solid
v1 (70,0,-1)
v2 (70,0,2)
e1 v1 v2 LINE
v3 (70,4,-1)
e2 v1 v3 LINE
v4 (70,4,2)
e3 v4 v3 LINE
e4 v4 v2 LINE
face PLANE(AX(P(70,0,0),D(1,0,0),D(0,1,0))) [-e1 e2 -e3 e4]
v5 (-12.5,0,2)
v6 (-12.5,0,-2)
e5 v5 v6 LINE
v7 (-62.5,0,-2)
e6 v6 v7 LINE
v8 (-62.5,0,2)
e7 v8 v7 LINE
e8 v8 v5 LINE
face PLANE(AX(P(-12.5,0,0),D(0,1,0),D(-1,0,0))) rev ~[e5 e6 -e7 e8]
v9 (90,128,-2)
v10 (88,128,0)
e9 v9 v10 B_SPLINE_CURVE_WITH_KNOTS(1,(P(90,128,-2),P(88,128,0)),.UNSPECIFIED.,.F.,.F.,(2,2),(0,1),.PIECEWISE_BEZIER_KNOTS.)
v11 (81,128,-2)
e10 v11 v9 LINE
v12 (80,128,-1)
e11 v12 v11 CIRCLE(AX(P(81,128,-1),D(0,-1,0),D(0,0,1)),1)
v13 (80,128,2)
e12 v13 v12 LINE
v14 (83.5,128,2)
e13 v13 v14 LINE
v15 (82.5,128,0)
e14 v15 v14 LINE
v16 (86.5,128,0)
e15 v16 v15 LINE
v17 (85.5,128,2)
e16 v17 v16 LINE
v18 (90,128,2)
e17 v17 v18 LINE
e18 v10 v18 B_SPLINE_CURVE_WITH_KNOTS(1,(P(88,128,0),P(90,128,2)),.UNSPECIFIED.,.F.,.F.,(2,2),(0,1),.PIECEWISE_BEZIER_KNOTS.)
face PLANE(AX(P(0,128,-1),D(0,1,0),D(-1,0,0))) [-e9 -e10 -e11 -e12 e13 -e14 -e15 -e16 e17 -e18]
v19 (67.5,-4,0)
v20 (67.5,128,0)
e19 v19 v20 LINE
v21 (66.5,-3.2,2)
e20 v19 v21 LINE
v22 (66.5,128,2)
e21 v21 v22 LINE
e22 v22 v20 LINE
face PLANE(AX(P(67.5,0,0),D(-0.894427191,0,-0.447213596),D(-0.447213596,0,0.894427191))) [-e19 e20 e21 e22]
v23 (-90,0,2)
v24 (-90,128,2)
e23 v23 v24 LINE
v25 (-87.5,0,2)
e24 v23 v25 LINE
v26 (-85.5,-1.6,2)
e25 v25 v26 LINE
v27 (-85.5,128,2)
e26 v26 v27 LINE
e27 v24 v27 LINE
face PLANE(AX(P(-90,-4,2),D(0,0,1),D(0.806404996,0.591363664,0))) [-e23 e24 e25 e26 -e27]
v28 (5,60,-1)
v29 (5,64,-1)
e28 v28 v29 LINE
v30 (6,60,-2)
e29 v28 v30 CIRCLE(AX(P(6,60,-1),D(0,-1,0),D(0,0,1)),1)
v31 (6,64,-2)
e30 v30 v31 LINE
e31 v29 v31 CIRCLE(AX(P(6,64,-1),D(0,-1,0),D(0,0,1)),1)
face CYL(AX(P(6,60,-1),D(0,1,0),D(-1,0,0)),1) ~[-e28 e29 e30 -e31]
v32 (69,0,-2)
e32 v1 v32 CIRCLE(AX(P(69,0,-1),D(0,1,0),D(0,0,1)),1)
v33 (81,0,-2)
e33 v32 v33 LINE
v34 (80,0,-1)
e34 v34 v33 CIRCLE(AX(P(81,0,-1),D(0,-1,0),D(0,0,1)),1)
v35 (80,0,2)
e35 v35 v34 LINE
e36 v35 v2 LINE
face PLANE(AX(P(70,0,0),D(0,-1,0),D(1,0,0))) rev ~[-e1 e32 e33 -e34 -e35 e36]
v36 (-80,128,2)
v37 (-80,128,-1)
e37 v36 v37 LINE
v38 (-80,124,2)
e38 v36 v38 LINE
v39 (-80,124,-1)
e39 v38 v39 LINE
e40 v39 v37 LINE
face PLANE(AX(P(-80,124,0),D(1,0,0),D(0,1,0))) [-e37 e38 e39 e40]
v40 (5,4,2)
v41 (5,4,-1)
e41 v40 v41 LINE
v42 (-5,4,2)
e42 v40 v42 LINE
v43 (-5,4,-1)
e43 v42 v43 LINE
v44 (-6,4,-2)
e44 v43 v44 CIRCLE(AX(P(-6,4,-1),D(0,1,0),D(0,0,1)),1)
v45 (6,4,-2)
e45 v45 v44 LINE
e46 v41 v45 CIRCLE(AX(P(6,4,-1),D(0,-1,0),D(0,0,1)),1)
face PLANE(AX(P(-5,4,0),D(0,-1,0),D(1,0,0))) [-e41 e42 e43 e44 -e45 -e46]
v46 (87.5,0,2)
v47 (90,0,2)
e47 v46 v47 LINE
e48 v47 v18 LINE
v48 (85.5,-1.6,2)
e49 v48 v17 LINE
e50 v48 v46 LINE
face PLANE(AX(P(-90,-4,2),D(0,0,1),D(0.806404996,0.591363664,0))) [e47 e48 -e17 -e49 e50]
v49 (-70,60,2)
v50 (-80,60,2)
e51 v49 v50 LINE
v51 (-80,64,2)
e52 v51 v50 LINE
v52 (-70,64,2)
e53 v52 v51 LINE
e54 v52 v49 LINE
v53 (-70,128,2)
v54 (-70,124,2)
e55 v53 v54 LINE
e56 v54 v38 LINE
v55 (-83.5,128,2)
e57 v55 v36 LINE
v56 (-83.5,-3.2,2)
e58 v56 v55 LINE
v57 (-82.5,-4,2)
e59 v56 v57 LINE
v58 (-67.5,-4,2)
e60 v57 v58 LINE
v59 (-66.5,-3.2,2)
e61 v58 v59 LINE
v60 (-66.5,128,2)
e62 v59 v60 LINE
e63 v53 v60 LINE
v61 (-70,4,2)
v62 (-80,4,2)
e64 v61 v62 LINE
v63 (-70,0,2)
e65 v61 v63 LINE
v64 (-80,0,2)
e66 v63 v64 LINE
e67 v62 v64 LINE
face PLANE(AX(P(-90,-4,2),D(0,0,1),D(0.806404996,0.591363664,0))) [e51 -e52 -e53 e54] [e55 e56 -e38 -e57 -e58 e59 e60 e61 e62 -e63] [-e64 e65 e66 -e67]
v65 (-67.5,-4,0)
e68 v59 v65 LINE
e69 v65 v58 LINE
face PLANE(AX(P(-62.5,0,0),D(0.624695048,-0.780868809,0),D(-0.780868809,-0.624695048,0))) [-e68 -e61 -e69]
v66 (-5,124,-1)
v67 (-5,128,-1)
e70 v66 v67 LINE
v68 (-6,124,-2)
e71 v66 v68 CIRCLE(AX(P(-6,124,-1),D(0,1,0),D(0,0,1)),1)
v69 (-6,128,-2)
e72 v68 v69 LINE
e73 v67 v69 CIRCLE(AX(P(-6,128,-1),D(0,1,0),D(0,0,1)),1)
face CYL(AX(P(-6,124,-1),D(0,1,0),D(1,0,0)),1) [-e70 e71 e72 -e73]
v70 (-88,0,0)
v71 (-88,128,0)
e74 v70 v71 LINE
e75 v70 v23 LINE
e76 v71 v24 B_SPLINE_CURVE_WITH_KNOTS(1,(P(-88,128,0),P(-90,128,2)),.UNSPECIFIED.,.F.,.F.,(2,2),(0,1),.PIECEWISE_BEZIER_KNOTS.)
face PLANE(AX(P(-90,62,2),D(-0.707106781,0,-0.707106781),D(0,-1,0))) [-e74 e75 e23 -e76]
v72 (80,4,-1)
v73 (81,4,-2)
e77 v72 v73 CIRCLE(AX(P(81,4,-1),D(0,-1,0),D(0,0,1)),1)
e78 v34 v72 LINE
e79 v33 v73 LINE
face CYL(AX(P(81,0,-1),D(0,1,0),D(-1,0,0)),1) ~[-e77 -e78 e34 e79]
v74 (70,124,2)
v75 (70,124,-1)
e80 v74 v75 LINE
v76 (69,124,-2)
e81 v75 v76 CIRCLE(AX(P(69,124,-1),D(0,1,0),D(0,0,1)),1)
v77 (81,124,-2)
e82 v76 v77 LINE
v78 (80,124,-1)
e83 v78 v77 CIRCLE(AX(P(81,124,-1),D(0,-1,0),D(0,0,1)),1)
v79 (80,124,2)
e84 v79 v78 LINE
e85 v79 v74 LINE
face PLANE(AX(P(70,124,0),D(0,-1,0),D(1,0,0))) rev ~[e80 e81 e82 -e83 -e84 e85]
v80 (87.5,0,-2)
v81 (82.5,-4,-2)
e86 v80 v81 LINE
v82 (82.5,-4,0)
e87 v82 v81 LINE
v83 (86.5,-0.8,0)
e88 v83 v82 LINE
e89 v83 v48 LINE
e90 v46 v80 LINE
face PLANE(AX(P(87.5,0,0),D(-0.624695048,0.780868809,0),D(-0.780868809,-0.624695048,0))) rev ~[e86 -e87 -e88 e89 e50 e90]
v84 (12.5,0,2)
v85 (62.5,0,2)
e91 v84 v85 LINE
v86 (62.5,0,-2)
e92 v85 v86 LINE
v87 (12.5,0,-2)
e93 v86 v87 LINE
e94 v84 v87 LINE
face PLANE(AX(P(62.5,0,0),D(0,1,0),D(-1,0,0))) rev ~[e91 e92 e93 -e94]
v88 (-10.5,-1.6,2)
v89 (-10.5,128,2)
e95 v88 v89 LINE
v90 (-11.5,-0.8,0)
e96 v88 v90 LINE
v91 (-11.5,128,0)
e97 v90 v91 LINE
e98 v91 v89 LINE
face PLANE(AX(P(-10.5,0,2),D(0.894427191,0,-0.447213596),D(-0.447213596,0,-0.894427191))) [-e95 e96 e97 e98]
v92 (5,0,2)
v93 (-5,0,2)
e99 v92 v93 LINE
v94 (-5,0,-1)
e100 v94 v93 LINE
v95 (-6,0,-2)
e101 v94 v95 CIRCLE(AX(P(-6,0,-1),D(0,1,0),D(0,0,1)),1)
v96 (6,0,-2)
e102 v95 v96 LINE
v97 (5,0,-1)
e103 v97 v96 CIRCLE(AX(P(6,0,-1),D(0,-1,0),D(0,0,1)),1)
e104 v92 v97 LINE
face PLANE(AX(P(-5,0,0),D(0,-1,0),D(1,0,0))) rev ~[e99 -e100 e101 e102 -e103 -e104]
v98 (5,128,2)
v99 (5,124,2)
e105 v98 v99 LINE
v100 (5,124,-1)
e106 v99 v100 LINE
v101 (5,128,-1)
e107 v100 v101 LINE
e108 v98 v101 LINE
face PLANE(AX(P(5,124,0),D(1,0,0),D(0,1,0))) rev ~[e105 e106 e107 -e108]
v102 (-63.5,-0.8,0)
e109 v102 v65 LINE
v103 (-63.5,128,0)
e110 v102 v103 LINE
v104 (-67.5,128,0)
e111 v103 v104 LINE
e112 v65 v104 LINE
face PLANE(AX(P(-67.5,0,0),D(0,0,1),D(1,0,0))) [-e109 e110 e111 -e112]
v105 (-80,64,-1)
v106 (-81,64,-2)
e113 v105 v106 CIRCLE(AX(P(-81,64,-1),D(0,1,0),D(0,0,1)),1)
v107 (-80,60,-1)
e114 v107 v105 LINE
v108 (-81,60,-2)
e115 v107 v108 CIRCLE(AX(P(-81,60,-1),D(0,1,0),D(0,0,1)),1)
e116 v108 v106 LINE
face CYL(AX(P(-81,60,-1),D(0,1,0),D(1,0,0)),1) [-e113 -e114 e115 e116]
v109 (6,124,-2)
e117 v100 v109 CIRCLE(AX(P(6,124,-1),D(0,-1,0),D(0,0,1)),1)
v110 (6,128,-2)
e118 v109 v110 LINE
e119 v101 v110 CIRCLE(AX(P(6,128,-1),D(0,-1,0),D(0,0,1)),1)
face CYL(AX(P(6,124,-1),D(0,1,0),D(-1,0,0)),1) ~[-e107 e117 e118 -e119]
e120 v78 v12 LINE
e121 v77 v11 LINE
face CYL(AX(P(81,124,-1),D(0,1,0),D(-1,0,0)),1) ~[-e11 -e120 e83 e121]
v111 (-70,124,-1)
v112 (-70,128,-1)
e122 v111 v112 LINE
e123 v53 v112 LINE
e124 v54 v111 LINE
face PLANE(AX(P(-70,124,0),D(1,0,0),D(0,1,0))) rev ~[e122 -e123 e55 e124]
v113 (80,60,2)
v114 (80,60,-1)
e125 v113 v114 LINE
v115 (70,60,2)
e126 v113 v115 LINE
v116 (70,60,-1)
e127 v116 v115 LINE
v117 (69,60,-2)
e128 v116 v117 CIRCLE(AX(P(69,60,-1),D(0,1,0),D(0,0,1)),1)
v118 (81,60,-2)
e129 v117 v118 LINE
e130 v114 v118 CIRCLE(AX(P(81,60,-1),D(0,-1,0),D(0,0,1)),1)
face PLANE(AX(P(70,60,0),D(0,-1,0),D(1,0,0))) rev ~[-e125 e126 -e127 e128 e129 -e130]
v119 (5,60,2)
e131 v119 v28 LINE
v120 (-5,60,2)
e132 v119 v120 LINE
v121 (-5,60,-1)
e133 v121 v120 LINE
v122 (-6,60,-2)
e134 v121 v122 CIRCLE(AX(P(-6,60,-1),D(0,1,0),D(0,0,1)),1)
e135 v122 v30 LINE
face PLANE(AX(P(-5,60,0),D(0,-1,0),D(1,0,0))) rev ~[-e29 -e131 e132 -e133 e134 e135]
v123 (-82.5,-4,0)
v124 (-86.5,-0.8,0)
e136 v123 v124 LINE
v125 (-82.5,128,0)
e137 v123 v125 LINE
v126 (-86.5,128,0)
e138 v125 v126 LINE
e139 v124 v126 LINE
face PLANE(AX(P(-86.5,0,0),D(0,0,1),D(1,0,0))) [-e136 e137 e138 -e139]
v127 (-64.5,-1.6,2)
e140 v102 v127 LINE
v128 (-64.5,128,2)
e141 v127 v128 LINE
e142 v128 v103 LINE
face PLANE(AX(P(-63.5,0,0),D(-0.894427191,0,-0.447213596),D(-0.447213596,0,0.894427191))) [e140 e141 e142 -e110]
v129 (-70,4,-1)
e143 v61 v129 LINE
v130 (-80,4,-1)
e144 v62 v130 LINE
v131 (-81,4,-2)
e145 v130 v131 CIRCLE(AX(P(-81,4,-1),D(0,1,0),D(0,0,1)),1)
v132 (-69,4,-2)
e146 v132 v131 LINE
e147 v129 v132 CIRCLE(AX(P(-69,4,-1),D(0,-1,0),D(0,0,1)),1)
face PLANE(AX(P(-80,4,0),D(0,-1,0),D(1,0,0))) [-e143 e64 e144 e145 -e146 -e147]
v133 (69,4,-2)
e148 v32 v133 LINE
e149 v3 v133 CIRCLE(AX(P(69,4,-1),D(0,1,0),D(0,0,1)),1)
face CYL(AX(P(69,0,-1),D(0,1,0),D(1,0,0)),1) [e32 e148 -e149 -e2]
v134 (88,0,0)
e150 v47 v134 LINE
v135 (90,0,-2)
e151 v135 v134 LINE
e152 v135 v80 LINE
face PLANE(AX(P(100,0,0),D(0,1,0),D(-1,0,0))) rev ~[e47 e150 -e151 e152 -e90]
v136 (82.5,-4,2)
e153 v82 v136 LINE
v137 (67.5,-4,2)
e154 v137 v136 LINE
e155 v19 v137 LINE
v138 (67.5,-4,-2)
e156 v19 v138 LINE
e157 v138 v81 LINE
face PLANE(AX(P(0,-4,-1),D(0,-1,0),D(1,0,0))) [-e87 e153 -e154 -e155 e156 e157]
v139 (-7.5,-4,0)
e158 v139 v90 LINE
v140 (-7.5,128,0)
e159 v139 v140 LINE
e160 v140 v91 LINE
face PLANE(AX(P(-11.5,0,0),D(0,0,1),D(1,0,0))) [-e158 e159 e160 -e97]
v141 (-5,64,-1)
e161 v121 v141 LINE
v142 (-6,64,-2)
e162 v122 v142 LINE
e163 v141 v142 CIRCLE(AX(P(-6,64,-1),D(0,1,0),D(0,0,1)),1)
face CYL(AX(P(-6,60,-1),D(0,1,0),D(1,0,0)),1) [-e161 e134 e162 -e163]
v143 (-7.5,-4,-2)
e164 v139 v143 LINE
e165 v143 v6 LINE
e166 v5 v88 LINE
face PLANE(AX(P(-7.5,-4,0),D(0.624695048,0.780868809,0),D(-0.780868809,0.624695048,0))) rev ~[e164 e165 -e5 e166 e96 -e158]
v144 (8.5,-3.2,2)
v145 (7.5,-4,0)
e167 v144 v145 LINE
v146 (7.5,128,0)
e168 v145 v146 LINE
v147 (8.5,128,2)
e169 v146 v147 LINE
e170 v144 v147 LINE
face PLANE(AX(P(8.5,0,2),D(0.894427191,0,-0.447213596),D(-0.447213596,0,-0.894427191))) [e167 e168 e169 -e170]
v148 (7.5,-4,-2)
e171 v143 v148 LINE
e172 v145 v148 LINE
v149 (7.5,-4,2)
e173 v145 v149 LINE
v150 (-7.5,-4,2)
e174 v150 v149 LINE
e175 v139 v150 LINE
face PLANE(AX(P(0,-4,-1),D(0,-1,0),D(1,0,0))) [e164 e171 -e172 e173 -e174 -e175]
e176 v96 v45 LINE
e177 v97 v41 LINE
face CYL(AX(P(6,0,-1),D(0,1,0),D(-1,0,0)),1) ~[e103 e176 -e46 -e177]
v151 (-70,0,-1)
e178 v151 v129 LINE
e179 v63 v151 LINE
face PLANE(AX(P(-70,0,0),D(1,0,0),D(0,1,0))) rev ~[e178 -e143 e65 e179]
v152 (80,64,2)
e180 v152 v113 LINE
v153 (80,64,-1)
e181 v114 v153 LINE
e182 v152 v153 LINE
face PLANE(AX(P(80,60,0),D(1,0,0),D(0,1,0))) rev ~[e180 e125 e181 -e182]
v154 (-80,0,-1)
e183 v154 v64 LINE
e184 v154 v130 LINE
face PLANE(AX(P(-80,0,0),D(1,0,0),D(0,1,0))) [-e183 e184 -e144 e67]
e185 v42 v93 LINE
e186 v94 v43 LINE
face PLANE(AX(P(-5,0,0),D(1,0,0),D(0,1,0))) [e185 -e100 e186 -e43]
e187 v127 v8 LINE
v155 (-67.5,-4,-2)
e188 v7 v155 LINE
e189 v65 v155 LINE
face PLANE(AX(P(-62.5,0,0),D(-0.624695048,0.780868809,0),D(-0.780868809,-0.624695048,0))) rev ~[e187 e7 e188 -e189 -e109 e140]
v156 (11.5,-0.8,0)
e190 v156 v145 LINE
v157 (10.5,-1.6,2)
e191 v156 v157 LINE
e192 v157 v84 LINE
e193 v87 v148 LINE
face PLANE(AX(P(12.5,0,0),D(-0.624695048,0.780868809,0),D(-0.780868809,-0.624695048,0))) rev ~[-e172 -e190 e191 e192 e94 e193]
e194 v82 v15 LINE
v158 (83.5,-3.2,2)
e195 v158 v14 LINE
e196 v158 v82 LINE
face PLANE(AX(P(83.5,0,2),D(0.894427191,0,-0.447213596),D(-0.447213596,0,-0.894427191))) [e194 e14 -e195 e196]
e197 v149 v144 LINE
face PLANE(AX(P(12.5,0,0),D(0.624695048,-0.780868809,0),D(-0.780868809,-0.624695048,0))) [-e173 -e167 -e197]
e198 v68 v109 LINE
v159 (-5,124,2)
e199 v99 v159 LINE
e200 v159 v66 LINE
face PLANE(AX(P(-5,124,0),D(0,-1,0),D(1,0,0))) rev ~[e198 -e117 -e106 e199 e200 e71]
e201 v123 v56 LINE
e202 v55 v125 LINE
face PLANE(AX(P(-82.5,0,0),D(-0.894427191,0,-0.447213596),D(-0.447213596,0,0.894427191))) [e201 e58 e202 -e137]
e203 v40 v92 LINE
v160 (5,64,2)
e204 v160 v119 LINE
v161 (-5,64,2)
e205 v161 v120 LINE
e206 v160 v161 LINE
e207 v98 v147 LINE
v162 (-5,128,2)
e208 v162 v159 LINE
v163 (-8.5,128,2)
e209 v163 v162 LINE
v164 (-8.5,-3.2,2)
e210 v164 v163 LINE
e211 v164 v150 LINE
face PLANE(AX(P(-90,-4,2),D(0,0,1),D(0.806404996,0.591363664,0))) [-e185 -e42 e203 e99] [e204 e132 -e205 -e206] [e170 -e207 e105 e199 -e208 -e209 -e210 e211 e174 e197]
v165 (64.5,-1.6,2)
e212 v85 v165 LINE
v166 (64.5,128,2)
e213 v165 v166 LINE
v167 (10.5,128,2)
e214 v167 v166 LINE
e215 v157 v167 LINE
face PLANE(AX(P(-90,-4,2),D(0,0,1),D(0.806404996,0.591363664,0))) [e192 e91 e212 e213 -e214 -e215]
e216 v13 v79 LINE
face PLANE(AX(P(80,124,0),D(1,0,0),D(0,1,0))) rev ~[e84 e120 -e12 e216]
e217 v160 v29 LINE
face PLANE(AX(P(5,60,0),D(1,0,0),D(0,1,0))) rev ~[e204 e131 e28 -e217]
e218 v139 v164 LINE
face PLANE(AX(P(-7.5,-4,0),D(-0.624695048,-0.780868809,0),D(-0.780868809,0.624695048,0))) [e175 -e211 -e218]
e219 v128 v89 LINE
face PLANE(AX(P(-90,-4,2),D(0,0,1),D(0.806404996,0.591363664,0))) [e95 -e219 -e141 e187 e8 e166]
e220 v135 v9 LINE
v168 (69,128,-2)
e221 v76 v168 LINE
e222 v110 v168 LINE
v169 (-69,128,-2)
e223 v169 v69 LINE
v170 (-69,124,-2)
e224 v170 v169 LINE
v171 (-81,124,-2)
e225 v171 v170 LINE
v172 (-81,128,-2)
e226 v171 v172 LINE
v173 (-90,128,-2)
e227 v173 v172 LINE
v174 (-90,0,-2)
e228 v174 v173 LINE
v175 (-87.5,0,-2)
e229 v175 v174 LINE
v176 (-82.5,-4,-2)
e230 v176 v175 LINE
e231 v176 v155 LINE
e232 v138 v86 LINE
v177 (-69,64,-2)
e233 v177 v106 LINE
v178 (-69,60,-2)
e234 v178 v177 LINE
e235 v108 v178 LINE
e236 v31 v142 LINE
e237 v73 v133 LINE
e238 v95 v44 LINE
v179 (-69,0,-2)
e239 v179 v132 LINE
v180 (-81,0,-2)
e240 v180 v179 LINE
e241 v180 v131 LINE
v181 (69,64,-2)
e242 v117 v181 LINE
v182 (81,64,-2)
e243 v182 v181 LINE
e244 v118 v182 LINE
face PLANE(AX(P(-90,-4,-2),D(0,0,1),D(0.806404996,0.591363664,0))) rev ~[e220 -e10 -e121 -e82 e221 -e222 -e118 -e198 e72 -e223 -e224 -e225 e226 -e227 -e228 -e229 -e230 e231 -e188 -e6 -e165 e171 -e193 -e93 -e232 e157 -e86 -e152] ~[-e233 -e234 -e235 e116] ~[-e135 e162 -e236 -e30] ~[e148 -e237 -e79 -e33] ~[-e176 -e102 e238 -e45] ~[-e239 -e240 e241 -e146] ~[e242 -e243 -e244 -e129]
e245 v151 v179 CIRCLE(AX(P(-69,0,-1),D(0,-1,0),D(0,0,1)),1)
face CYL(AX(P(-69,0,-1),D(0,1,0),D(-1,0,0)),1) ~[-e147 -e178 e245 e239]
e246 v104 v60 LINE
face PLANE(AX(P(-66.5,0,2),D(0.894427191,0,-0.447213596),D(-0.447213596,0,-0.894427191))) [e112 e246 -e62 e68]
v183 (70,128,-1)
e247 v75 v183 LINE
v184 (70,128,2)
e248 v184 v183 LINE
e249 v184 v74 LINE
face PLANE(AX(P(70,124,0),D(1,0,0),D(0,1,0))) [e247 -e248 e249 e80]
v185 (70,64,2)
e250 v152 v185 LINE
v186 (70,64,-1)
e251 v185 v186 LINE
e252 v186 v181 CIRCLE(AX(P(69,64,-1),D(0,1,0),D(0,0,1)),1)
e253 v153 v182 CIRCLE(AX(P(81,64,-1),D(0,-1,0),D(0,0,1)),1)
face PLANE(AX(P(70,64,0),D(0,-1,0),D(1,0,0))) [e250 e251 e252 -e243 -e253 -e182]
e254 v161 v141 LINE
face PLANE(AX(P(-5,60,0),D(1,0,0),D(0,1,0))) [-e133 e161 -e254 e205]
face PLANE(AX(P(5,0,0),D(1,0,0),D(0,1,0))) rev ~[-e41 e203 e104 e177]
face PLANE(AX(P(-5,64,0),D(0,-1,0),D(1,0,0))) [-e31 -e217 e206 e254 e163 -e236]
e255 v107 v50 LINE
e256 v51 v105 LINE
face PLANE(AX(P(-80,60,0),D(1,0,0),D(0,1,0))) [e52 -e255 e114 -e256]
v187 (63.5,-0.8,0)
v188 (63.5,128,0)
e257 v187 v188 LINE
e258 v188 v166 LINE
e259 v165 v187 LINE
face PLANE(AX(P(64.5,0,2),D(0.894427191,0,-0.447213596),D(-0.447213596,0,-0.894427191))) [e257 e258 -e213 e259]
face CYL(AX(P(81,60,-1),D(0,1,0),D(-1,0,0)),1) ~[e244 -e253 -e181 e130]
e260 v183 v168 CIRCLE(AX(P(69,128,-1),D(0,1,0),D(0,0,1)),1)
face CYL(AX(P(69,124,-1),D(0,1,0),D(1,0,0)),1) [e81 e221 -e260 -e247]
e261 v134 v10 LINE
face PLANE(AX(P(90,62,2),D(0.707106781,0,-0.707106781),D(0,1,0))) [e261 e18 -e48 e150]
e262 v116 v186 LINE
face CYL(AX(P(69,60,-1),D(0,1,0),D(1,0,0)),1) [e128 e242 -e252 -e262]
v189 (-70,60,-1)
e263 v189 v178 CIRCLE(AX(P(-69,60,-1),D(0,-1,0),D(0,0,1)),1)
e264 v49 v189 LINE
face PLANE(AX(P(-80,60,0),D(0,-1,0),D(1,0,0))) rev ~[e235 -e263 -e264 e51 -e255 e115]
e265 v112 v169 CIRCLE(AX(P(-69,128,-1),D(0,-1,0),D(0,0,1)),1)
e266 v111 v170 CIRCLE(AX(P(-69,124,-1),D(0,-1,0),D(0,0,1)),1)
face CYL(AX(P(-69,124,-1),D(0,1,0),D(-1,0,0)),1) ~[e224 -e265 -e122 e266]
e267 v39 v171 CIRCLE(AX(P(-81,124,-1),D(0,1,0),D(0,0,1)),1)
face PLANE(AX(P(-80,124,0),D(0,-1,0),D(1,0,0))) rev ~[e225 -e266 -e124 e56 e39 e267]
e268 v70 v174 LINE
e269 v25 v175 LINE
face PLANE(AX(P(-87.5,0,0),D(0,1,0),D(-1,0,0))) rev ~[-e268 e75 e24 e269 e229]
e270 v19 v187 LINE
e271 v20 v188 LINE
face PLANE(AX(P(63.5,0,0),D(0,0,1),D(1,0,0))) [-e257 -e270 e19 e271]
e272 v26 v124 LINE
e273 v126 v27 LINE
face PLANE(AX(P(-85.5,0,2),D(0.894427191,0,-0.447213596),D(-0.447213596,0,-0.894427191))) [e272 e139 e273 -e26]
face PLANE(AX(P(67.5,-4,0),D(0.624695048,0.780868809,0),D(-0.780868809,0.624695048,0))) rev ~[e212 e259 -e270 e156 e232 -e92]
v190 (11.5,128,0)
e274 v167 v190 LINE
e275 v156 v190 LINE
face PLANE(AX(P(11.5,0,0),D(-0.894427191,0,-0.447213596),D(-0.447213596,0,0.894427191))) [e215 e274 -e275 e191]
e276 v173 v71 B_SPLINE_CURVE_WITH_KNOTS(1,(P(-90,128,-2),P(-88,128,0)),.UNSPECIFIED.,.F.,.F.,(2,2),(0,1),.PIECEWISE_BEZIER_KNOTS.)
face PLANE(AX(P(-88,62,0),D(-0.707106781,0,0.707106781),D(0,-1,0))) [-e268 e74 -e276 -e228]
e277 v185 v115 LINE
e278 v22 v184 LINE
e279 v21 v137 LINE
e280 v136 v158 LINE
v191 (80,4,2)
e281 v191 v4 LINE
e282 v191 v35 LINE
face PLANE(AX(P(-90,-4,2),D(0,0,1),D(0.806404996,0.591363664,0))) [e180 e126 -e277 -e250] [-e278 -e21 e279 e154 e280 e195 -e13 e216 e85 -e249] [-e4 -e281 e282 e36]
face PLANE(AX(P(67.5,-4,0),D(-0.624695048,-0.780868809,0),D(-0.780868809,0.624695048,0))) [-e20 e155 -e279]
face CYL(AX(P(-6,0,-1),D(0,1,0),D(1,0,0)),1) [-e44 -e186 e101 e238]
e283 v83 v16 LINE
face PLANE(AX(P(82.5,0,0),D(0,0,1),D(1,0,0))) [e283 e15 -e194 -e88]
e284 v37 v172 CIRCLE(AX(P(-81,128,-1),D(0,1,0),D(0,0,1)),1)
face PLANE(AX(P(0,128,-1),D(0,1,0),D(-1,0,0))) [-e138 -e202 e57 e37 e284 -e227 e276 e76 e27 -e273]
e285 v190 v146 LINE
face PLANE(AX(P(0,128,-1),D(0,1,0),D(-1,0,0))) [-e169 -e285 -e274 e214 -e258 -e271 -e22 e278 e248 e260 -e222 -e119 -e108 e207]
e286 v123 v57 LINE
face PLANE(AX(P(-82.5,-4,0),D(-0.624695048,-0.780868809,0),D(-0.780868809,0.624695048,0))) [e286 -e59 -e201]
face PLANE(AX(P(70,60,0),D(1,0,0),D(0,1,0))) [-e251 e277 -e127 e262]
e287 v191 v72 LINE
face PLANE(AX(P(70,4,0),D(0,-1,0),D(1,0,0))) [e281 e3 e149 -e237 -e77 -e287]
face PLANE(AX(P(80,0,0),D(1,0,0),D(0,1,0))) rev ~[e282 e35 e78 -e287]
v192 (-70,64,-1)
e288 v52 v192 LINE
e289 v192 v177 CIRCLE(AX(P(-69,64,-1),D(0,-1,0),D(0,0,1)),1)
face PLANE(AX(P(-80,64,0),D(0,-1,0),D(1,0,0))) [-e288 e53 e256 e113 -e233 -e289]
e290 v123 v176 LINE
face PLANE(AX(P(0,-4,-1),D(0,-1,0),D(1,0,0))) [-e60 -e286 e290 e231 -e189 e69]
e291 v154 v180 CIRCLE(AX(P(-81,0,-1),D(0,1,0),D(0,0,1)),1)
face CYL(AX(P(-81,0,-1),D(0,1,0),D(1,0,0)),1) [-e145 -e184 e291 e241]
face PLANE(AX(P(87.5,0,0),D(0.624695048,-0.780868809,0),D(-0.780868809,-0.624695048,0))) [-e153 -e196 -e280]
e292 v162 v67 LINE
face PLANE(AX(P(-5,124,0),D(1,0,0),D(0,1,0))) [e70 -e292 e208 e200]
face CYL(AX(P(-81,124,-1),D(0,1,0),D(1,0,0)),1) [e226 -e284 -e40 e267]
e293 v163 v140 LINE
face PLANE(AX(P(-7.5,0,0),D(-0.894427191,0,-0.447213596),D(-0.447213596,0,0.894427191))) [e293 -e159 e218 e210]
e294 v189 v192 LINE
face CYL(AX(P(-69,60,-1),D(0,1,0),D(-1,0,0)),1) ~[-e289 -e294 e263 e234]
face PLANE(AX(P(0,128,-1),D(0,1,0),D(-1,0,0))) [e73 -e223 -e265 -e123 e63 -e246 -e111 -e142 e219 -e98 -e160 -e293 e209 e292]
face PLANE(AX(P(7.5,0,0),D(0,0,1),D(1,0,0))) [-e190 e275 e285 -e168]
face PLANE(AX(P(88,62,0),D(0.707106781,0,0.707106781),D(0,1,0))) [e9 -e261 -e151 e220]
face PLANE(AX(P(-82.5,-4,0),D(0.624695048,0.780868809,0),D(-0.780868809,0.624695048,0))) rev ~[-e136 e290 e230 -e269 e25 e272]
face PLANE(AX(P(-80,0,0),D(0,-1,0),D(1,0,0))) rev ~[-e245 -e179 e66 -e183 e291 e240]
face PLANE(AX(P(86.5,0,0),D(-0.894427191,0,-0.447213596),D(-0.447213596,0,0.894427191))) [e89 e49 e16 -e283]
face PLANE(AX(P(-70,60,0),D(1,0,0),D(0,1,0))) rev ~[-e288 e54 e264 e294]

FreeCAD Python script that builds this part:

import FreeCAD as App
import Part
import Sketcher

V = App.Vector


def edges_at(feature, points):
    """Names of the edges that pass closest to the given points."""
    edges = feature.Shape.Edges
    near = lambda p: min(range(len(edges)), key=lambda i: edges[i].distToShape(Part.Vertex(*p))[0])
    return sorted({f"Edge{near(p) + 1}" for p in points})

doc = App.newDocument("Part")
body = doc.addObject("PartDesign::Body", "Body")

# Sketch on XY plane
sketch1 = body.newObject("Sketcher::SketchObject", "Sketch")
sketch1.AttachmentSupport = (doc.getObject("XY_Plane"), [""])
sketch1.MapMode = "FlatFace"
sketch1.AttachmentOffset = App.Placement(V(0, 0, -2), App.Rotation())
sketch1.addGeometry(Part.LineSegment(V(-90, 128, 0), V(-90, -4, 0)), False)
sketch1.addGeometry(Part.LineSegment(V(-90, -4, 0), V(90, -4, 0)), False)
sketch1.addGeometry(Part.LineSegment(V(90, -4, 0), V(90, 128, 0)), False)
sketch1.addGeometry(Part.LineSegment(V(90, 128, 0), V(-90, 128, 0)), False)
sketch1.addConstraint(Sketcher.Constraint("Coincident", 0, 2, 1, 1))
sketch1.addConstraint(Sketcher.Constraint("Coincident", 1, 2, 2, 1))
sketch1.addConstraint(Sketcher.Constraint("Coincident", 2, 2, 3, 1))
sketch1.addConstraint(Sketcher.Constraint("Coincident", 3, 2, 0, 1))
sketch1.addConstraint(Sketcher.Constraint("Vertical", 0))
sketch1.addConstraint(Sketcher.Constraint("Horizontal", 1))
sketch1.addConstraint(Sketcher.Constraint("Vertical", 2))
sketch1.addConstraint(Sketcher.Constraint("Horizontal", 3))
sketch1.addConstraint(Sketcher.Constraint("DistanceX", 1, 1, 1, 2, 180.0))
sketch1.addConstraint(Sketcher.Constraint("DistanceY", 0, 2, 0, 1, 132.0))
sketch1.addConstraint(Sketcher.Constraint("DistanceX", 0, 2, -1, 1, 90.0))
sketch1.addConstraint(Sketcher.Constraint("DistanceY", 0, 2, -1, 1, 4.0))

# Sketch on XY plane
sketch2 = body.newObject("Sketcher::SketchObject", "Sketch001")
sketch2.AttachmentSupport = (doc.getObject("XY_Plane"), [""])
sketch2.MapMode = "FlatFace"
sketch2.addGeometry(Part.LineSegment(V(-88, 128, 0), V(-88, -4, 0)), False)
sketch2.addGeometry(Part.LineSegment(V(-88, -4, 0), V(88, -4, 0)), False)
sketch2.addGeometry(Part.LineSegment(V(88, -4, 0), V(88, 128, 0)), False)
sketch2.addGeometry(Part.LineSegment(V(88, 128, 0), V(-88, 128, 0)), False)
sketch2.addConstraint(Sketcher.Constraint("Coincident", 0, 2, 1, 1))
sketch2.addConstraint(Sketcher.Constraint("Coincident", 1, 2, 2, 1))
sketch2.addConstraint(Sketcher.Constraint("Coincident", 2, 2, 3, 1))
sketch2.addConstraint(Sketcher.Constraint("Coincident", 3, 2, 0, 1))
sketch2.addConstraint(Sketcher.Constraint("Vertical", 0))
sketch2.addConstraint(Sketcher.Constraint("Horizontal", 1))
sketch2.addConstraint(Sketcher.Constraint("Vertical", 2))
sketch2.addConstraint(Sketcher.Constraint("Horizontal", 3))
sketch2.addConstraint(Sketcher.Constraint("DistanceX", 1, 1, 1, 2, 176.0))
sketch2.addConstraint(Sketcher.Constraint("DistanceY", 0, 2, 0, 1, 132.0))
sketch2.addConstraint(Sketcher.Constraint("DistanceX", 0, 2, -1, 1, 88.0))
sketch2.addConstraint(Sketcher.Constraint("DistanceY", 0, 2, -1, 1, 4.0))

# Sketch on XY plane
sketch3 = body.newObject("Sketcher::SketchObject", "Sketch002")
sketch3.AttachmentSupport = (doc.getObject("XY_Plane"), [""])
sketch3.MapMode = "FlatFace"
sketch3.AttachmentOffset = App.Placement(V(0, 0, 2), App.Rotation())
sketch3.addGeometry(Part.LineSegment(V(-90, 128, 0), V(-90, -4, 0)), False)
sketch3.addGeometry(Part.LineSegment(V(-90, -4, 0), V(90, -4, 0)), False)
sketch3.addGeometry(Part.LineSegment(V(90, -4, 0), V(90, 128, 0)), False)
sketch3.addGeometry(Part.LineSegment(V(90, 128, 0), V(-90, 128, 0)), False)
sketch3.addConstraint(Sketcher.Constraint("Coincident", 0, 2, 1, 1))
sketch3.addConstraint(Sketcher.Constraint("Coincident", 1, 2, 2, 1))
sketch3.addConstraint(Sketcher.Constraint("Coincident", 2, 2, 3, 1))
sketch3.addConstraint(Sketcher.Constraint("Coincident", 3, 2, 0, 1))
sketch3.addConstraint(Sketcher.Constraint("Vertical", 0))
sketch3.addConstraint(Sketcher.Constraint("Horizontal", 1))
sketch3.addConstraint(Sketcher.Constraint("Vertical", 2))
sketch3.addConstraint(Sketcher.Constraint("Horizontal", 3))
sketch3.addConstraint(Sketcher.Constraint("DistanceX", 1, 1, 1, 2, 180.0))
sketch3.addConstraint(Sketcher.Constraint("DistanceY", 0, 2, 0, 1, 132.0))
sketch3.addConstraint(Sketcher.Constraint("DistanceX", 0, 2, -1, 1, 90.0))
sketch3.addConstraint(Sketcher.Constraint("DistanceY", 0, 2, -1, 1, 4.0))

additiveloft = body.newObject("PartDesign::AdditiveLoft", "AdditiveLoft")
additiveloft.Profile = sketch1
additiveloft.Sections = [sketch2, sketch3]
additiveloft.Ruled = True

# Sketch on XY plane
sketch4 = body.newObject("Sketcher::SketchObject", "Sketch003")
sketch4.AttachmentSupport = (doc.getObject("XY_Plane"), [""])
sketch4.MapMode = "FlatFace"
sketch4.addGeometry(Part.LineSegment(V(-80, 4, 0), V(-80, 0, 0)), False)
sketch4.addGeometry(Part.LineSegment(V(-80, 0, 0), V(-70, 0, 0)), False)
sketch4.addGeometry(Part.LineSegment(V(-70, 0, 0), V(-70, 4, 0)), False)
sketch4.addGeometry(Part.LineSegment(V(-70, 4, 0), V(-80, 4, 0)), False)
sketch4.addGeometry(Part.LineSegment(V(-5, 4, 0), V(-5, 0, 0)), False)
sketch4.addGeometry(Part.LineSegment(V(-5, 0, 0), V(5, 0, 0)), False)
sketch4.addGeometry(Part.LineSegment(V(5, 0, 0), V(5, 4, 0)), False)
sketch4.addGeometry(Part.LineSegment(V(5, 4, 0), V(-5, 4, 0)), False)
sketch4.addGeometry(Part.LineSegment(V(70, 4, 0), V(70, 0, 0)), False)
sketch4.addGeometry(Part.LineSegment(V(70, 0, 0), V(80, 0, 0)), False)
sketch4.addGeometry(Part.LineSegment(V(80, 0, 0), V(80, 4, 0)), False)
sketch4.addGeometry(Part.LineSegment(V(80, 4, 0), V(70, 4, 0)), False)
sketch4.addConstraint(Sketcher.Constraint("Coincident", 0, 2, 1, 1))
sketch4.addConstraint(Sketcher.Constraint("Coincident", 1, 2, 2, 1))
sketch4.addConstraint(Sketcher.Constraint("Coincident", 2, 2, 3, 1))
sketch4.addConstraint(Sketcher.Constraint("Coincident", 3, 2, 0, 1))
sketch4.addConstraint(Sketcher.Constraint("Coincident", 4, 2, 5, 1))
sketch4.addConstraint(Sketcher.Constraint("Coincident", 5, 2, 6, 1))
sketch4.addConstraint(Sketcher.Constraint("Coincident", 6, 2, 7, 1))
sketch4.addConstraint(Sketcher.Constraint("Coincident", 7, 2, 4, 1))
sketch4.addConstraint(Sketcher.Constraint("Coincident", 8, 2, 9, 1))
sketch4.addConstraint(Sketcher.Constraint("Coincident", 9, 2, 10, 1))
sketch4.addConstraint(Sketcher.Constraint("Coincident", 10, 2, 11, 1))
sketch4.addConstraint(Sketcher.Constraint("Coincident", 11, 2, 8, 1))
sketch4.addConstraint(Sketcher.Constraint("Vertical", 0))
sketch4.addConstraint(Sketcher.Constraint("Horizontal", 1))
sketch4.addConstraint(Sketcher.Constraint("Vertical", 2))
sketch4.addConstraint(Sketcher.Constraint("Horizontal", 3))
sketch4.addConstraint(Sketcher.Constraint("Vertical", 4))
sketch4.addConstraint(Sketcher.Constraint("Horizontal", 5))
sketch4.addConstraint(Sketcher.Constraint("Vertical", 6))
sketch4.addConstraint(Sketcher.Constraint("Horizontal", 7))
sketch4.addConstraint(Sketcher.Constraint("Vertical", 8))
sketch4.addConstraint(Sketcher.Constraint("Horizontal", 9))
sketch4.addConstraint(Sketcher.Constraint("Vertical", 10))
sketch4.addConstraint(Sketcher.Constraint("Horizontal", 11))
sketch4.addConstraint(Sketcher.Constraint("Symmetric", 4, 2, 5, 2, -1, 1))
sketch4.addConstraint(Sketcher.Constraint("Symmetric", 1, 2, 8, 2, -1, 1))
sketch4.addConstraint(Sketcher.Constraint("Symmetric", 0, 2, 9, 2, -2))
sketch4.addConstraint(Sketcher.Constraint("Horizontal", 3, 2, 6, 2))
sketch4.addConstraint(Sketcher.Constraint("Horizontal", 7, 2, 10, 2))
sketch4.addConstraint(Sketcher.Constraint("Equal", 3, 5))
sketch4.addConstraint(Sketcher.Constraint("DistanceX", 1, 1, 1, 2, 10.0))
sketch4.addConstraint(Sketcher.Constraint("DistanceY", 0, 2, 0, 1, 4.0))
sketch4.addConstraint(Sketcher.Constraint("DistanceX", 0, 2, -1, 1, 80.0))
pocket1 = body.newObject("PartDesign::Pocket", "Pocket")
pocket1.Profile = sketch4
pocket1.Type = "ThroughAll"
pocket1.Midplane = True

# Sketch on XY plane
sketch5 = body.newObject("Sketcher::SketchObject", "Sketch004")
sketch5.AttachmentSupport = (doc.getObject("XY_Plane"), [""])
sketch5.MapMode = "FlatFace"
sketch5.addGeometry(Part.LineSegment(V(-80, 64, 0), V(-80, 60, 0)), False)
sketch5.addGeometry(Part.LineSegment(V(-80, 60, 0), V(-70, 60, 0)), False)
sketch5.addGeometry(Part.LineSegment(V(-70, 60, 0), V(-70, 64, 0)), False)
sketch5.addGeometry(Part.LineSegment(V(-70, 64, 0), V(-80, 64, 0)), False)
sketch5.addGeometry(Part.LineSegment(V(-5, 64, 0), V(-5, 60, 0)), False)
sketch5.addGeometry(Part.LineSegment(V(-5, 60, 0), V(5, 60, 0)), False)
sketch5.addGeometry(Part.LineSegment(V(5, 60, 0), V(5, 64, 0)), False)
sketch5.addGeometry(Part.LineSegment(V(5, 64, 0), V(-5, 64, 0)), False)
sketch5.addGeometry(Part.LineSegment(V(70, 64, 0), V(70, 60, 0)), False)
sketch5.addGeometry(Part.LineSegment(V(70, 60, 0), V(80, 60, 0)), False)
sketch5.addGeometry(Part.LineSegment(V(80, 60, 0), V(80, 64, 0)), False)
sketch5.addGeometry(Part.LineSegment(V(80, 64, 0), V(70, 64, 0)), False)
sketch5.addConstraint(Sketcher.Constraint("Coincident", 0, 2, 1, 1))
sketch5.addConstraint(Sketcher.Constraint("Coincident", 1, 2, 2, 1))
sketch5.addConstraint(Sketcher.Constraint("Coincident", 2, 2, 3, 1))
sketch5.addConstraint(Sketcher.Constraint("Coincident", 3, 2, 0, 1))
sketch5.addConstraint(Sketcher.Constraint("Coincident", 4, 2, 5, 1))
sketch5.addConstraint(Sketcher.Constraint("Coincident", 5, 2, 6, 1))
sketch5.addConstraint(Sketcher.Constraint("Coincident", 6, 2, 7, 1))
sketch5.addConstraint(Sketcher.Constraint("Coincident", 7, 2, 4, 1))
sketch5.addConstraint(Sketcher.Constraint("Coincident", 8, 2, 9, 1))
sketch5.addConstraint(Sketcher.Constraint("Coincident", 9, 2, 10, 1))
sketch5.addConstraint(Sketcher.Constraint("Coincident", 10, 2, 11, 1))
sketch5.addConstraint(Sketcher.Constraint("Coincident", 11, 2, 8, 1))
sketch5.addConstraint(Sketcher.Constraint("Vertical", 0))
sketch5.addConstraint(Sketcher.Constraint("Horizontal", 1))
sketch5.addConstraint(Sketcher.Constraint("Vertical", 2))
sketch5.addConstraint(Sketcher.Constraint("Horizontal", 3))
sketch5.addConstraint(Sketcher.Constraint("Vertical", 4))
sketch5.addConstraint(Sketcher.Constraint("Horizontal", 5))
sketch5.addConstraint(Sketcher.Constraint("Vertical", 6))
sketch5.addConstraint(Sketcher.Constraint("Horizontal", 7))
sketch5.addConstraint(Sketcher.Constraint("Vertical", 8))
sketch5.addConstraint(Sketcher.Constraint("Horizontal", 9))
sketch5.addConstraint(Sketcher.Constraint("Vertical", 10))
sketch5.addConstraint(Sketcher.Constraint("Horizontal", 11))
sketch5.addConstraint(Sketcher.Constraint("Symmetric", 1, 2, 8, 2, -2))
sketch5.addConstraint(Sketcher.Constraint("Symmetric", 3, 2, 10, 2, -2))
sketch5.addConstraint(Sketcher.Constraint("Horizontal", 1, 2, 4, 2))
sketch5.addConstraint(Sketcher.Constraint("Horizontal", 3, 2, 6, 2))
sketch5.addConstraint(Sketcher.Constraint("Equal", 3, 5))
sketch5.addConstraint(Sketcher.Constraint("DistanceX", 1, 1, 1, 2, 10.0))
sketch5.addConstraint(Sketcher.Constraint("DistanceY", 0, 2, 0, 1, 4.0))
sketch5.addConstraint(Sketcher.Constraint("DistanceX", 0, 2, -1, 1, 80.0))
sketch5.addConstraint(Sketcher.Constraint("DistanceY", -1, 1, 0, 2, 60.0))
sketch5.addConstraint(Sketcher.Constraint("DistanceX", 4, 2, -1, 1, 5.0))
pocket2 = body.newObject("PartDesign::Pocket", "Pocket001")
pocket2.Profile = sketch5
pocket2.Type = "ThroughAll"
pocket2.Midplane = True

# Sketch on XY plane
sketch6 = body.newObject("Sketcher::SketchObject", "Sketch005")
sketch6.AttachmentSupport = (doc.getObject("XY_Plane"), [""])
sketch6.MapMode = "FlatFace"
sketch6.addGeometry(Part.LineSegment(V(-80, 128, 0), V(-80, 124, 0)), False)
sketch6.addGeometry(Part.LineSegment(V(-80, 124, 0), V(-70, 124, 0)), False)
sketch6.addGeometry(Part.LineSegment(V(-70, 124, 0), V(-70, 128, 0)), False)
sketch6.addGeometry(Part.LineSegment(V(-70, 128, 0), V(-80, 128, 0)), False)
sketch6.addGeometry(Part.LineSegment(V(-5, 128, 0), V(-5, 124, 0)), False)
sketch6.addGeometry(Part.LineSegment(V(-5, 124, 0), V(5, 124, 0)), False)
sketch6.addGeometry(Part.LineSegment(V(5, 124, 0), V(5, 128, 0)), False)
sketch6.addGeometry(Part.LineSegment(V(5, 128, 0), V(-5, 128, 0)), False)
sketch6.addGeometry(Part.LineSegment(V(70, 128, 0), V(70, 124, 0)), False)
sketch6.addGeometry(Part.LineSegment(V(70, 124, 0), V(80, 124, 0)), False)
sketch6.addGeometry(Part.LineSegment(V(80, 124, 0), V(80, 128, 0)), False)
sketch6.addGeometry(Part.LineSegment(V(80, 128, 0), V(70, 128, 0)), False)
sketch6.addConstraint(Sketcher.Constraint("Coincident", 0, 2, 1, 1))
sketch6.addConstraint(Sketcher.Constraint("Coincident", 1, 2, 2, 1))
sketch6.addConstraint(Sketcher.Constraint("Coincident", 2, 2, 3, 1))
sketch6.addConstraint(Sketcher.Constraint("Coincident", 3, 2, 0, 1))
sketch6.addConstraint(Sketcher.Constraint("Coincident", 4, 2, 5, 1))
sketch6.addConstraint(Sketcher.Constraint("Coincident", 5, 2, 6, 1))
sketch6.addConstraint(Sketcher.Constraint("Coincident", 6, 2, 7, 1))
sketch6.addConstraint(Sketcher.Constraint("Coincident", 7, 2, 4, 1))
sketch6.addConstraint(Sketcher.Constraint("Coincident", 8, 2, 9, 1))
sketch6.addConstraint(Sketcher.Constraint("Coincident", 9, 2, 10, 1))
sketch6.addConstraint(Sketcher.Constraint("Coincident", 10, 2, 11, 1))
sketch6.addConstraint(Sketcher.Constraint("Coincident", 11, 2, 8, 1))
sketch6.addConstraint(Sketcher.Constraint("Vertical", 0))
sketch6.addConstraint(Sketcher.Constraint("Horizontal", 1))
sketch6.addConstraint(Sketcher.Constraint("Vertical", 2))
sketch6.addConstraint(Sketcher.Constraint("Horizontal", 3))
sketch6.addConstraint(Sketcher.Constraint("Vertical", 4))
sketch6.addConstraint(Sketcher.Constraint("Horizontal", 5))
sketch6.addConstraint(Sketcher.Constraint("Vertical", 6))
sketch6.addConstraint(Sketcher.Constraint("Horizontal", 7))
sketch6.addConstraint(Sketcher.Constraint("Vertical", 8))
sketch6.addConstraint(Sketcher.Constraint("Horizontal", 9))
sketch6.addConstraint(Sketcher.Constraint("Vertical", 10))
sketch6.addConstraint(Sketcher.Constraint("Horizontal", 11))
sketch6.addConstraint(Sketcher.Constraint("Symmetric", 1, 2, 8, 2, -2))
sketch6.addConstraint(Sketcher.Constraint("Symmetric", 3, 2, 10, 2, -2))
sketch6.addConstraint(Sketcher.Constraint("Horizontal", 1, 2, 4, 2))
sketch6.addConstraint(Sketcher.Constraint("Horizontal", 3, 2, 6, 2))
sketch6.addConstraint(Sketcher.Constraint("Equal", 3, 5))
sketch6.addConstraint(Sketcher.Constraint("DistanceX", 1, 1, 1, 2, 10.0))
sketch6.addConstraint(Sketcher.Constraint("DistanceY", 0, 2, 0, 1, 4.0))
sketch6.addConstraint(Sketcher.Constraint("DistanceX", 0, 2, -1, 1, 80.0))
sketch6.addConstraint(Sketcher.Constraint("DistanceY", -1, 1, 0, 2, 124.0))
sketch6.addConstraint(Sketcher.Constraint("DistanceX", 4, 2, -1, 1, 5.0))
pocket3 = body.newObject("PartDesign::Pocket", "Pocket002")
pocket3.Profile = sketch6
pocket3.Type = "ThroughAll"
pocket3.Midplane = True

# Sketch on XZ plane
sketch7 = body.newObject("Sketcher::SketchObject", "Sketch006")
sketch7.AttachmentSupport = (doc.getObject("XZ_Plane"), [""])
sketch7.MapMode = "FlatFace"
sketch7.addGeometry(Part.LineSegment(V(-11.5, 0, 0), V(-7.5, 0, 0)), False)
sketch7.addGeometry(Part.LineSegment(V(-7.5, 0, 0), V(-8.5, 2, 0)), False)
sketch7.addGeometry(Part.LineSegment(V(-8.5, 2, 0), V(-10.5, 2, 0)), False)
sketch7.addGeometry(Part.LineSegment(V(-10.5, 2, 0), V(-11.5, 0, 0)), False)
sketch7.addGeometry(Part.LineSegment(V(7.5, 0, 0), V(11.5, 0, 0)), False)
sketch7.addGeometry(Part.LineSegment(V(11.5, 0, 0), V(10.5, 2, 0)), False)
sketch7.addGeometry(Part.LineSegment(V(10.5, 2, 0), V(8.5, 2, 0)), False)
sketch7.addGeometry(Part.LineSegment(V(8.5, 2, 0), V(7.5, 0, 0)), False)
sketch7.addConstraint(Sketcher.Constraint("Coincident", 0, 2, 1, 1))
sketch7.addConstraint(Sketcher.Constraint("Coincident", 1, 2, 2, 1))
sketch7.addConstraint(Sketcher.Constraint("Coincident", 2, 2, 3, 1))
sketch7.addConstraint(Sketcher.Constraint("Coincident", 3, 2, 0, 1))
sketch7.addConstraint(Sketcher.Constraint("Coincident", 4, 2, 5, 1))
sketch7.addConstraint(Sketcher.Constraint("Coincident", 5, 2, 6, 1))
sketch7.addConstraint(Sketcher.Constraint("Coincident", 6, 2, 7, 1))
sketch7.addConstraint(Sketcher.Constraint("Coincident", 7, 2, 4, 1))
sketch7.addConstraint(Sketcher.Constraint("Horizontal", 0))
sketch7.addConstraint(Sketcher.Constraint("Horizontal", 2))
sketch7.addConstraint(Sketcher.Constraint("Horizontal", 4))
sketch7.addConstraint(Sketcher.Constraint("Horizontal", 6))
sketch7.addConstraint(Sketcher.Constraint("Symmetric", 3, 2, 4, 2, -1, 1))
sketch7.addConstraint(Sketcher.Constraint("Symmetric", 2, 2, 5, 2, -2))
sketch7.addConstraint(Sketcher.Constraint("Symmetric", 0, 2, 7, 2, -2))
sketch7.addConstraint(Sketcher.Constraint("Parallel", 1, 5))
sketch7.addConstraint(Sketcher.Constraint("Parallel", 3, 7))
sketch7.addConstraint(Sketcher.Constraint("DistanceX", 0, 1, 0, 2, 4.0))
sketch7.addConstraint(Sketcher.Constraint("DistanceX", 2, 2, 2, 1, 2.0))
sketch7.addConstraint(Sketcher.Constraint("DistanceY", -1, 1, 1, 2, 2.0))
sketch7.addConstraint(Sketcher.Constraint("DistanceX", 0, 2, 4, 2, 19.0))
pocket4 = body.newObject("PartDesign::Pocket", "Pocket003")
pocket4.Profile = sketch7
pocket4.Type = "ThroughAll"
pocket4.Midplane = True

# Sketch on XZ plane
sketch8 = body.newObject("Sketcher::SketchObject", "Sketch007")
sketch8.AttachmentSupport = (doc.getObject("XZ_Plane"), [""])
sketch8.MapMode = "FlatFace"
sketch8.addGeometry(Part.LineSegment(V(-86.5, 0, 0), V(-82.5, 0, 0)), False)
sketch8.addGeometry(Part.LineSegment(V(-82.5, 0, 0), V(-83.5, 2, 0)), False)
sketch8.addGeometry(Part.LineSegment(V(-83.5, 2, 0), V(-85.5, 2, 0)), False)
sketch8.addGeometry(Part.LineSegment(V(-85.5, 2, 0), V(-86.5, 0, 0)), False)
sketch8.addGeometry(Part.LineSegment(V(-67.5, 0, 0), V(-63.5, 0, 0)), False)
sketch8.addGeometry(Part.LineSegment(V(-63.5, 0, 0), V(-64.5, 2, 0)), False)
sketch8.addGeometry(Part.LineSegment(V(-64.5, 2, 0), V(-66.5, 2, 0)), False)
sketch8.addGeometry(Part.LineSegment(V(-66.5, 2, 0), V(-67.5, 0, 0)), False)
sketch8.addConstraint(Sketcher.Constraint("Coincident", 0, 2, 1, 1))
sketch8.addConstraint(Sketcher.Constraint("Coincident", 1, 2, 2, 1))
sketch8.addConstraint(Sketcher.Constraint("Coincident", 2, 2, 3, 1))
sketch8.addConstraint(Sketcher.Constraint("Coincident", 3, 2, 0, 1))
sketch8.addConstraint(Sketcher.Constraint("Coincident", 4, 2, 5, 1))
sketch8.addConstraint(Sketcher.Constraint("Coincident", 5, 2, 6, 1))
sketch8.addConstraint(Sketcher.Constraint("Coincident", 6, 2, 7, 1))
sketch8.addConstraint(Sketcher.Constraint("Coincident", 7, 2, 4, 1))
sketch8.addConstraint(Sketcher.Constraint("Horizontal", 0))
sketch8.addConstraint(Sketcher.Constraint("Horizontal", 2))
sketch8.addConstraint(Sketcher.Constraint("Horizontal", 4))
sketch8.addConstraint(Sketcher.Constraint("Horizontal", 6))
sketch8.addConstraint(Sketcher.Constraint("PointOnObject", 0, 2, -1))
sketch8.addConstraint(Sketcher.Constraint("PointOnObject", 4, 2, -1))
sketch8.addConstraint(Sketcher.Constraint("Parallel", 1, 5))
sketch8.addConstraint(Sketcher.Constraint("Parallel", 3, 7))
sketch8.addConstraint(Sketcher.Constraint("Horizontal", 2, 2, 5, 2))
sketch8.addConstraint(Sketcher.Constraint("Equal", 0, 4))
sketch8.addConstraint(Sketcher.Constraint("Equal", 1, 3))
sketch8.addConstraint(Sketcher.Constraint("DistanceX", 0, 1, 0, 2, 4.0))
sketch8.addConstraint(Sketcher.Constraint("DistanceX", 2, 2, 2, 1, 2.0))
sketch8.addConstraint(Sketcher.Constraint("DistanceY", -1, 1, 1, 2, 2.0))
sketch8.addConstraint(Sketcher.Constraint("DistanceX", 0, 2, 4, 2, 19.0))
sketch8.addConstraint(Sketcher.Constraint("DistanceX", 0, 2, -1, 1, 82.5))
pocket5 = body.newObject("PartDesign::Pocket", "Pocket004")
pocket5.Profile = sketch8
pocket5.Type = "ThroughAll"
pocket5.Midplane = True

# Sketch on XZ plane
sketch9 = body.newObject("Sketcher::SketchObject", "Sketch008")
sketch9.AttachmentSupport = (doc.getObject("XZ_Plane"), [""])
sketch9.MapMode = "FlatFace"
sketch9.addGeometry(Part.LineSegment(V(63.5, 0, 0), V(67.5, 0, 0)), False)
sketch9.addGeometry(Part.LineSegment(V(67.5, 0, 0), V(66.5, 2, 0)), False)
sketch9.addGeometry(Part.LineSegment(V(66.5, 2, 0), V(64.5, 2, 0)), False)
sketch9.addGeometry(Part.LineSegment(V(64.5, 2, 0), V(63.5, 0, 0)), False)
sketch9.addGeometry(Part.LineSegment(V(82.5, 0, 0), V(86.5, 0, 0)), False)
sketch9.addGeometry(Part.LineSegment(V(86.5, 0, 0), V(85.5, 2, 0)), False)
sketch9.addGeometry(Part.LineSegment(V(85.5, 2, 0), V(83.5, 2, 0)), False)
sketch9.addGeometry(Part.LineSegment(V(83.5, 2, 0), V(82.5, 0, 0)), False)
sketch9.addConstraint(Sketcher.Constraint("Coincident", 0, 2, 1, 1))
sketch9.addConstraint(Sketcher.Constraint("Coincident", 1, 2, 2, 1))
sketch9.addConstraint(Sketcher.Constraint("Coincident", 2, 2, 3, 1))
sketch9.addConstraint(Sketcher.Constraint("Coincident", 3, 2, 0, 1))
sketch9.addConstraint(Sketcher.Constraint("Coincident", 4, 2, 5, 1))
sketch9.addConstraint(Sketcher.Constraint("Coincident", 5, 2, 6, 1))
sketch9.addConstraint(Sketcher.Constraint("Coincident", 6, 2, 7, 1))
sketch9.addConstraint(Sketcher.Constraint("Coincident", 7, 2, 4, 1))
sketch9.addConstraint(Sketcher.Constraint("Horizontal", 0))
sketch9.addConstraint(Sketcher.Constraint("Horizontal", 2))
sketch9.addConstraint(Sketcher.Constraint("Horizontal", 4))
sketch9.addConstraint(Sketcher.Constraint("Horizontal", 6))
sketch9.addConstraint(Sketcher.Constraint("PointOnObject", 0, 2, -1))
sketch9.addConstraint(Sketcher.Constraint("PointOnObject", 4, 2, -1))
sketch9.addConstraint(Sketcher.Constraint("Parallel", 1, 5))
sketch9.addConstraint(Sketcher.Constraint("Parallel", 3, 7))
sketch9.addConstraint(Sketcher.Constraint("Horizontal", 2, 2, 5, 2))
sketch9.addConstraint(Sketcher.Constraint("Equal", 0, 4))
sketch9.addConstraint(Sketcher.Constraint("Equal", 1, 3))
sketch9.addConstraint(Sketcher.Constraint("DistanceX", 0, 1, 0, 2, 4.0))
sketch9.addConstraint(Sketcher.Constraint("DistanceX", 2, 2, 2, 1, 2.0))
sketch9.addConstraint(Sketcher.Constraint("DistanceY", -1, 1, 1, 2, 2.0))
sketch9.addConstraint(Sketcher.Constraint("DistanceX", 0, 2, 4, 2, 19.0))
sketch9.addConstraint(Sketcher.Constraint("DistanceX", -1, 1, 0, 2, 67.5))
pocket6 = body.newObject("PartDesign::Pocket", "Pocket005")
pocket6.Profile = sketch9
pocket6.Type = "ThroughAll"
pocket6.Midplane = True
doc.recompute()

fillet = body.newObject("PartDesign::Fillet", "Fillet")
fillet.Base = (pocket6, edges_at(pocket6, [
    (-70, 2, -2),
    (-80, 2, -2),
    (-5, 2, -2),
    (5, 2, -2),
    (70, 2, -2),
    (80, 2, -2),
    (-80, 62, -2),
    (-70, 62, -2),
    (-5, 62, -2),
    (5, 62, -2),
    (70, 62, -2),
    (80, 62, -2),
    (-80, 126, -2),
    (-70, 126, -2),
    (-5, 126, -2),
    (5, 126, -2),
    (70, 126, -2),
    (80, 126, -2),
]))
fillet.Radius = 1

# Sketch on XY plane
sketch10 = body.newObject("Sketcher::SketchObject", "Sketch009")
sketch10.AttachmentSupport = (doc.getObject("XY_Plane"), [""])
sketch10.MapMode = "FlatFace"
sketch10.addGeometry(Part.LineSegment(V(-100, 0, 0), V(-100, -20, 0)), False)
sketch10.addGeometry(Part.LineSegment(V(-100, -20, 0), V(100, -20, 0)), False)
sketch10.addGeometry(Part.LineSegment(V(100, -20, 0), V(100, 0, 0)), False)
sketch10.addGeometry(Part.LineSegment(V(100, 0, 0), V(87.5, 0, 0)), False)
sketch10.addGeometry(Part.LineSegment(V(87.5, 0, 0), V(82.5, -4, 0)), False)
sketch10.addGeometry(Part.LineSegment(V(82.5, -4, 0), V(67.5, -4, 0)), False)
sketch10.addGeometry(Part.LineSegment(V(67.5, -4, 0), V(62.5, 0, 0)), False)
sketch10.addGeometry(Part.LineSegment(V(62.5, 0, 0), V(12.5, 0, 0)), False)
sketch10.addGeometry(Part.LineSegment(V(12.5, 0, 0), V(7.5, -4, 0)), False)
sketch10.addGeometry(Part.LineSegment(V(7.5, -4, 0), V(-7.5, -4, 0)), False)
sketch10.addGeometry(Part.LineSegment(V(-7.5, -4, 0), V(-12.5, 0, 0)), False)
sketch10.addGeometry(Part.LineSegment(V(-12.5, 0, 0), V(-62.5, 0, 0)), False)
sketch10.addGeometry(Part.LineSegment(V(-62.5, 0, 0), V(-67.5, -4, 0)), False)
sketch10.addGeometry(Part.LineSegment(V(-67.5, -4, 0), V(-82.5, -4, 0)), False)
sketch10.addGeometry(Part.LineSegment(V(-82.5, -4, 0), V(-87.5, 0, 0)), False)
sketch10.addGeometry(Part.LineSegment(V(-87.5, 0, 0), V(-100, 0, 0)), False)
sketch10.addConstraint(Sketcher.Constraint("Coincident", 0, 2, 1, 1))
sketch10.addConstraint(Sketcher.Constraint("Coincident", 1, 2, 2, 1))
sketch10.addConstraint(Sketcher.Constraint("Coincident", 2, 2, 3, 1))
sketch10.addConstraint(Sketcher.Constraint("Coincident", 3, 2, 4, 1))
sketch10.addConstraint(Sketcher.Constraint("Coincident", 4, 2, 5, 1))
sketch10.addConstraint(Sketcher.Constraint("Coincident", 5, 2, 6, 1))
sketch10.addConstraint(Sketcher.Constraint("Coincident", 6, 2, 7, 1))
sketch10.addConstraint(Sketcher.Constraint("Coincident", 7, 2, 8, 1))
sketch10.addConstraint(Sketcher.Constraint("Coincident", 8, 2, 9, 1))
sketch10.addConstraint(Sketcher.Constraint("Coincident", 9, 2, 10, 1))
sketch10.addConstraint(Sketcher.Constraint("Coincident", 10, 2, 11, 1))
sketch10.addConstraint(Sketcher.Constraint("Coincident", 11, 2, 12, 1))
sketch10.addConstraint(Sketcher.Constraint("Coincident", 12, 2, 13, 1))
sketch10.addConstraint(Sketcher.Constraint("Coincident", 13, 2, 14, 1))
sketch10.addConstraint(Sketcher.Constraint("Coincident", 14, 2, 15, 1))
sketch10.addConstraint(Sketcher.Constraint("Coincident", 15, 2, 0, 1))
sketch10.addConstraint(Sketcher.Constraint("Vertical", 0))
sketch10.addConstraint(Sketcher.Constraint("Horizontal", 1))
sketch10.addConstraint(Sketcher.Constraint("Vertical", 2))
sketch10.addConstraint(Sketcher.Constraint("Horizontal", 3))
sketch10.addConstraint(Sketcher.Constraint("Horizontal", 5))
sketch10.addConstraint(Sketcher.Constraint("Horizontal", 7))
sketch10.addConstraint(Sketcher.Constraint("Horizontal", 9))
sketch10.addConstraint(Sketcher.Constraint("Horizontal", 11))
sketch10.addConstraint(Sketcher.Constraint("Horizontal", 13))
sketch10.addConstraint(Sketcher.Constraint("Horizontal", 15))
sketch10.addConstraint(Sketcher.Constraint("Symmetric", 7, 2, 10, 2, -1, 1))
sketch10.addConstraint(Sketcher.Constraint("Symmetric", 3, 2, 14, 2, -1, 1))
sketch10.addConstraint(Sketcher.Constraint("Symmetric", 6, 2, 11, 2, -2))
sketch10.addConstraint(Sketcher.Constraint("Symmetric", 5, 2, 12, 2, -2))
sketch10.addConstraint(Sketcher.Constraint("Symmetric", 2, 2, 15, 2, -2))
sketch10.addConstraint(Sketcher.Constraint("Parallel", 4, 8))
sketch10.addConstraint(Sketcher.Constraint("Parallel", 6, 10))
sketch10.addConstraint(Sketcher.Constraint("Parallel", 8, 12))
sketch10.addConstraint(Sketcher.Constraint("Parallel", 10, 14))
sketch10.addConstraint(Sketcher.Constraint("Horizontal", 5, 2, 8, 2))
sketch10.addConstraint(Sketcher.Constraint("Equal", 5, 9))
sketch10.addConstraint(Sketcher.Constraint("DistanceX", 1, 1, 1, 2, 200.0))
sketch10.addConstraint(Sketcher.Constraint("DistanceX", 5, 2, 5, 1, 15.0))
sketch10.addConstraint(Sketcher.Constraint("DistanceX", 7, 2, 7, 1, 50.0))
sketch10.addConstraint(Sketcher.Constraint("DistanceY", 0, 2, 0, 1, 20.0))
sketch10.addConstraint(Sketcher.Constraint("DistanceX", 3, 2, 3, 1, 12.5))
sketch10.addConstraint(Sketcher.Constraint("DistanceY", 4, 2, -1, 1, 4.0))
pocket7 = body.newObject("PartDesign::Pocket", "Pocket006")
pocket7.Profile = sketch10
pocket7.Type = "ThroughAll"
pocket7.Midplane = True

doc.recompute()
